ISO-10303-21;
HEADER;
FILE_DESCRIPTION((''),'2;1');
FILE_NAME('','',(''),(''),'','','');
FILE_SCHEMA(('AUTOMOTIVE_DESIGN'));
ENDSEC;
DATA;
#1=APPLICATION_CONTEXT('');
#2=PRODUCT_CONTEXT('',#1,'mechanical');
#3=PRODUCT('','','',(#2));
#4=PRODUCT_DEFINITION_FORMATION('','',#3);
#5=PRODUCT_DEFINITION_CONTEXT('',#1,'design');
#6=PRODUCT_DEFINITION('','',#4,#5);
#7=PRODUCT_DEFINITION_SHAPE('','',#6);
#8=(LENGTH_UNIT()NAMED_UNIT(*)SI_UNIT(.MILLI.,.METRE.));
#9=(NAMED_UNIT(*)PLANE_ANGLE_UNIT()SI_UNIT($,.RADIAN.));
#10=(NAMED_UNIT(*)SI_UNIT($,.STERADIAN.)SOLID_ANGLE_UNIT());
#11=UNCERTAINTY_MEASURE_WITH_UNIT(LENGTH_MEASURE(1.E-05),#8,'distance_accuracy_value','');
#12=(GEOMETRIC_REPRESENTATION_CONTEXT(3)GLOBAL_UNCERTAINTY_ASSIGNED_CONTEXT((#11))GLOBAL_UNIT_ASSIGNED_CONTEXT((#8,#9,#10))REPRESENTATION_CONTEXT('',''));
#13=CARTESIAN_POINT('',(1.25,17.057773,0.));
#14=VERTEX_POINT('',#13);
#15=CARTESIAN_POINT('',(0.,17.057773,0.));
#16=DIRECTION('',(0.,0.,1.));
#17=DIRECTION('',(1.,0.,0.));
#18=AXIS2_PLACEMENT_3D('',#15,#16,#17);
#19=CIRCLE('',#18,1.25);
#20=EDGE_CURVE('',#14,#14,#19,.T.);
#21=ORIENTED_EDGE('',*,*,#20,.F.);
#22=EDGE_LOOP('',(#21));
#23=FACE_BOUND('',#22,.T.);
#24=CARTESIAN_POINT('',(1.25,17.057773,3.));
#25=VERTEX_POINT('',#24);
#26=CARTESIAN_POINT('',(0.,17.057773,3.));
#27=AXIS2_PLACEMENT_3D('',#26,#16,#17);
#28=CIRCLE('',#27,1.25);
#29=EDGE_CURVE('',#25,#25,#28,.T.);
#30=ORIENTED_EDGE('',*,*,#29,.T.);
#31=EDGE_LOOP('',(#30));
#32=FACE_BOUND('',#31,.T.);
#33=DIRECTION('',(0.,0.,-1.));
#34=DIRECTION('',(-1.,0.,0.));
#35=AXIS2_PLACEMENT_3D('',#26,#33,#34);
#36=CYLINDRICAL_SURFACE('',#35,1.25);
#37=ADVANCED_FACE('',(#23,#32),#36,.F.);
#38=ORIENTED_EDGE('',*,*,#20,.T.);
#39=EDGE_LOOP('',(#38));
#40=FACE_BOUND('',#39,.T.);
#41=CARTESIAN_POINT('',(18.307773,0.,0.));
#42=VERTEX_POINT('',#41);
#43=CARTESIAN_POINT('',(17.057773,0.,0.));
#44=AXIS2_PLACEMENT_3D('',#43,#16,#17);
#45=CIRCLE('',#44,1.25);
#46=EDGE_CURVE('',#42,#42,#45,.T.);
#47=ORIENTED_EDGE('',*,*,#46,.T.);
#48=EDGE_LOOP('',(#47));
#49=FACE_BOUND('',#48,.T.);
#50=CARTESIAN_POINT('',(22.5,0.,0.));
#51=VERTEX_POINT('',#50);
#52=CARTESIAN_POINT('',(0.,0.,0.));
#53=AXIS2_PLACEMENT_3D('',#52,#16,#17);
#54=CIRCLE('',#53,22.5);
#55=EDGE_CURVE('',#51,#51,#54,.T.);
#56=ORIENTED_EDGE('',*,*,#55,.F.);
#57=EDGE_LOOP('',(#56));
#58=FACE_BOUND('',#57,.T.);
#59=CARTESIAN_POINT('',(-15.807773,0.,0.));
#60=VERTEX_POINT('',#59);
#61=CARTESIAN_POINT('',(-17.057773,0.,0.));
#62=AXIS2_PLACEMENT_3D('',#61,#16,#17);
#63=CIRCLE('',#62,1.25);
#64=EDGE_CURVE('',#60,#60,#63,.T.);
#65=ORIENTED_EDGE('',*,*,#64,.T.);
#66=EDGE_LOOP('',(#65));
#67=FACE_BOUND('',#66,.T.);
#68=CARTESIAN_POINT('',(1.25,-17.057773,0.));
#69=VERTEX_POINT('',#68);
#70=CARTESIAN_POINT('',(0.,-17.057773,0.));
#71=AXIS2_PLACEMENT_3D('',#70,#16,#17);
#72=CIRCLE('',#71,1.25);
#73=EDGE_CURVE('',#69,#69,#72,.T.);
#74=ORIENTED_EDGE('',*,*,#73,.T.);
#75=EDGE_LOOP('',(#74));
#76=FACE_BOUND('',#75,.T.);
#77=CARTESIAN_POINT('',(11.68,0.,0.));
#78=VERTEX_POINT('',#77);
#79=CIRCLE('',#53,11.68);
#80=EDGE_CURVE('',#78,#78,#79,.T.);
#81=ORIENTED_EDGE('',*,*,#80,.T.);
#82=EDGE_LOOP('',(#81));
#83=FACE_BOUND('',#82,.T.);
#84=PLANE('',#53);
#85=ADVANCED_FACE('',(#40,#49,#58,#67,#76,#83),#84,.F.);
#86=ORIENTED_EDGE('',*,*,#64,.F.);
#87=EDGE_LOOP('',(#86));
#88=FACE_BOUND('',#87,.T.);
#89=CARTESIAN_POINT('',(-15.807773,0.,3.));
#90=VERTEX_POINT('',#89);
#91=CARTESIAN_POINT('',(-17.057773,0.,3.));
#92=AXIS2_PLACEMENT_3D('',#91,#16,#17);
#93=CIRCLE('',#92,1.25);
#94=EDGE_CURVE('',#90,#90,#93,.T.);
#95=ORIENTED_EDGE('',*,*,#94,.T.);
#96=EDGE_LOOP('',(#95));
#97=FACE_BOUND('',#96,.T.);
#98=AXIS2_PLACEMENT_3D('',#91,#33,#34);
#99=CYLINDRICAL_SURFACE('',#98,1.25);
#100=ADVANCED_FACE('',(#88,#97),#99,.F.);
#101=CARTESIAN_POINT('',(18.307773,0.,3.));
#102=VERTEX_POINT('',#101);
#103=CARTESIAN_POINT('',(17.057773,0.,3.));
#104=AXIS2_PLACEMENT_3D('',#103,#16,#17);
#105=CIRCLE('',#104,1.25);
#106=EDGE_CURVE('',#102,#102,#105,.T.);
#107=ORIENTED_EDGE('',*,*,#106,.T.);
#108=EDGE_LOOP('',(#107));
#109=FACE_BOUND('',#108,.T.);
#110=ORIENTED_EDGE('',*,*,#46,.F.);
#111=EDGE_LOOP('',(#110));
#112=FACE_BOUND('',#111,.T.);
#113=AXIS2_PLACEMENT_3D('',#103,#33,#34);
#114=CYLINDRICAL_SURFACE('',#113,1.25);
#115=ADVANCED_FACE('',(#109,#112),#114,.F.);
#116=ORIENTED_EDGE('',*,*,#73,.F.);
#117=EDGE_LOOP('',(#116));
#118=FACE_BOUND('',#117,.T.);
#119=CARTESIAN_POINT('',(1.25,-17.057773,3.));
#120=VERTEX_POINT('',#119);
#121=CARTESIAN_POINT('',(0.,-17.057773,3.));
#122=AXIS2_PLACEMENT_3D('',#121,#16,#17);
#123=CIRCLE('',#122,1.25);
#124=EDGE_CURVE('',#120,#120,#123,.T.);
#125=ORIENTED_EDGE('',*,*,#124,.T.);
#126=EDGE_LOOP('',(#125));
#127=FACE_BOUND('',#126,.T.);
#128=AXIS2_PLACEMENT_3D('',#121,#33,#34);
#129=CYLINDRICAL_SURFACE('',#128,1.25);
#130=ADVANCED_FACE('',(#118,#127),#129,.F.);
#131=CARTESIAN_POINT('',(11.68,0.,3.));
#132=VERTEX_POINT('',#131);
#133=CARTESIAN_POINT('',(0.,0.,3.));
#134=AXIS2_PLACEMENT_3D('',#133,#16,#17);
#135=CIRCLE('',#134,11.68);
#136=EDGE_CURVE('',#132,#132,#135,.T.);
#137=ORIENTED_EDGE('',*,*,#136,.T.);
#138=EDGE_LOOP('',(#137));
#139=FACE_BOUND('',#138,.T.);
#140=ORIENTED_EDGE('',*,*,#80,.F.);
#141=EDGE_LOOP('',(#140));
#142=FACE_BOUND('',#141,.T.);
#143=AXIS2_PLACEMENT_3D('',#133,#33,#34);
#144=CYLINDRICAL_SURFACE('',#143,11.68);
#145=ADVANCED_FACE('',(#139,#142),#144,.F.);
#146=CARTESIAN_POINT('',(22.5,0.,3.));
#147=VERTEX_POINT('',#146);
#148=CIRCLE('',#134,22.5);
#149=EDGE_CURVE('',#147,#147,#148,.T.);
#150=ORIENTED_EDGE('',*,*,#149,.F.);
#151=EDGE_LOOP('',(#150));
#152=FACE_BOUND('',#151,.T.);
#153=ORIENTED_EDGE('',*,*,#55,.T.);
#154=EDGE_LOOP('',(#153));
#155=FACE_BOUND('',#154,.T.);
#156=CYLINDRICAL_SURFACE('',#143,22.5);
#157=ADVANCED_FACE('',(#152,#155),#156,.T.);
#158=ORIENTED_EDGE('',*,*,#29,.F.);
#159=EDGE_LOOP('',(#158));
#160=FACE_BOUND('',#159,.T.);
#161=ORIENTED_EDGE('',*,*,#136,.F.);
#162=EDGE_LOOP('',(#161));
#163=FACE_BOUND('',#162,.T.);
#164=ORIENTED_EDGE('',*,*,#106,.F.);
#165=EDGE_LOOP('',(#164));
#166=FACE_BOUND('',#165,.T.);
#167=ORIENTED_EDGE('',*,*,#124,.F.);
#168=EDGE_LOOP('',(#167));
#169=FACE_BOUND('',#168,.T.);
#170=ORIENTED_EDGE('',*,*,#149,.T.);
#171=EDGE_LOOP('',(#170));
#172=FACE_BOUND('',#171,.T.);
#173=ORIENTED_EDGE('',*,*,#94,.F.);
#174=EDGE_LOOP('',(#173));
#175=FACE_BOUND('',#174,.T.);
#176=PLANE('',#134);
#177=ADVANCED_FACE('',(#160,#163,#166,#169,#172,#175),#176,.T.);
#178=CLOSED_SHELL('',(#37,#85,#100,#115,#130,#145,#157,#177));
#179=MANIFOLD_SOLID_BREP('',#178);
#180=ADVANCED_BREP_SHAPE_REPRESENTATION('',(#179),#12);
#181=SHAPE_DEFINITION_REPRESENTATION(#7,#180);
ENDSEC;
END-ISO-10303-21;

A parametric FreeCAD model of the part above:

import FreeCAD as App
import Part
import Sketcher
from FreeCAD import Vector

doc = App.newDocument("Part")
params = doc.addObject("Spreadsheet::Sheet", "Params")
for row, (alias, value) in enumerate([
    ("sketch1_diameter", "45 mm"),
    ("sketch1_diameter2", "2.5 mm"),
    ("sketch1_diameter3", "23.36 mm"),
    ("pad1_length", "3 mm"),
], start=1):
    params.set(f"A{row}", alias)
    params.set(f"B{row}", "=" + value)
    params.setAlias(f"B{row}", alias)

body = doc.addObject("PartDesign::Body", "Body")

# Sketch on XY plane
sketch1 = doc.addObject("Sketcher::SketchObject", "Sketch")
body.addObject(sketch1)
sketch1.AttachmentSupport = (doc.XY_Plane, [""])
sketch1.MapMode = "FlatFace"
sketch1.addGeometry(Part.Circle(Vector(0, 0, 0), Vector(0, 0, 1), 22.5), False)
sketch1.addGeometry(Part.Circle(Vector(0, -17.1, 0), Vector(0, 0, 1), 1.2), False)
sketch1.addGeometry(Part.Circle(Vector(-17.1, 0, 0), Vector(0, 0, 1), 1.2), False)
sketch1.addGeometry(Part.Circle(Vector(0, 0, 0), Vector(0, 0, 1), 11.7), False)
sketch1.addGeometry(Part.Circle(Vector(17.1, 0, 0), Vector(0, 0, 1), 1.2), False)
sketch1.addGeometry(Part.Circle(Vector(0, 17.1, 0), Vector(0, 0, 1), 1.2), False)
sketch1.addConstraint(Sketcher.Constraint("Coincident", 0, 3, -1, 1))
sketch1.addConstraint(Sketcher.Constraint("Coincident", 3, 3, -1, 1))
sketch1.addConstraint(Sketcher.Constraint("Equal", 1, 2))
sketch1.addConstraint(Sketcher.Constraint("Equal", 2, 4))
sketch1.addConstraint(Sketcher.Constraint("Equal", 4, 5))
sketch1.addConstraint(Sketcher.Constraint("Symmetric", 2, 3, 4, 3, -1, 1))
sketch1.addConstraint(Sketcher.Constraint("Symmetric", 1, 3, 5, 3, -1, 1))
sketch1.addConstraint(Sketcher.Constraint("PointOnObject", 1, 3, -2))
sketch1.addConstraint(Sketcher.Constraint("PointOnObject", 2, 3, -1))
sketch1.addConstraint(Sketcher.Constraint("Diameter", 0, 45.0))
sketch1.addConstraint(Sketcher.Constraint("Diameter", 1, 2.5))
sketch1.addConstraint(Sketcher.Constraint("Diameter", 3, 23.36))
sketch1.addConstraint(Sketcher.Constraint("DistanceY", 1, 3, -1, 1, 17.057773))
sketch1.addConstraint(Sketcher.Constraint("DistanceX", 2, 3, -1, 1, 17.057773))
sketch1.setExpression("Constraints[9]", "Params.sketch1_diameter")
sketch1.setExpression("Constraints[10]", "Params.sketch1_diameter2")
sketch1.setExpression("Constraints[11]", "Params.sketch1_diameter3")
pad1 = doc.addObject("PartDesign::Pad", "Pad")
body.addObject(pad1)
pad1.Profile = sketch1
pad1.setExpression("Length", "Params.pad1_length")

doc.recompute()
